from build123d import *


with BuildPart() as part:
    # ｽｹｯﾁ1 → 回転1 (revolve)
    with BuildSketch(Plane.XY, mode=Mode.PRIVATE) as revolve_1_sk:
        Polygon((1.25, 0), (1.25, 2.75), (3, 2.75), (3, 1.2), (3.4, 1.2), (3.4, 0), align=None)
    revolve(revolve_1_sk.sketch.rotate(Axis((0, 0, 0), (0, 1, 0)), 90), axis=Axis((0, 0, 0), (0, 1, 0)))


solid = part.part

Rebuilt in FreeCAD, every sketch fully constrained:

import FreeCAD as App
import Part
import Sketcher
from FreeCAD import Vector


def add_polygon(sketch, points):
    """Adds a closed chain of lines whose ends are joined by coincident constraints."""
    first, n = sketch.GeometryCount, len(points)
    for a, b in zip(points, points[1:] + points[:1]):
        sketch.addGeometry(Part.LineSegment(App.Vector(*a, 0), App.Vector(*b, 0)), False)
    for i in range(n):
        sketch.addConstraint(Sketcher.Constraint("Coincident", first + i, 2, first + (i + 1) % n, 1))

doc = App.newDocument("Part")
body = doc.addObject("PartDesign::Body", "Body")

# Sketch on XY plane
sketch1 = body.newObject("Sketcher::SketchObject", "Sketch")
sketch1.AttachmentSupport = (doc.getObject("XY_Plane"), [""])
sketch1.MapMode = "FlatFace"
add_polygon(sketch1, [(1.25, 2.75), (1.25, 0), (3.4, 0), (3.4, 1.2), (3, 1.2), (3, 2.75)])  # lines 0-5
sketch1.addConstraint([
    Sketcher.Constraint("Vertical", 0),
    Sketcher.Constraint("Horizontal", 1),
    Sketcher.Constraint("Vertical", 2),
    Sketcher.Constraint("Horizontal", 3),
    Sketcher.Constraint("Vertical", 4),
    Sketcher.Constraint("Horizontal", 5),
    Sketcher.Constraint("PointOnObject", 0, 2, -1),
    Sketcher.Constraint("DistanceX", 3, 2, 3, 1, 0.4),
    Sketcher.Constraint("DistanceY", 2, 1, 2, 2, 1.2),
    Sketcher.Constraint("DistanceX", -1, 1, 3, 2, 3.0),
    Sketcher.Constraint("DistanceX", 1, 1, 1, 2, 2.15),
    Sketcher.Constraint("DistanceY", 0, 2, 0, 1, 2.75),
])
revolution = body.newObject("PartDesign::Revolution", "Revolution")
revolution.Profile = sketch1
revolution.ReferenceAxis = (sketch1, ["V_Axis"])
revolution.Angle = 360

doc.recompute()
